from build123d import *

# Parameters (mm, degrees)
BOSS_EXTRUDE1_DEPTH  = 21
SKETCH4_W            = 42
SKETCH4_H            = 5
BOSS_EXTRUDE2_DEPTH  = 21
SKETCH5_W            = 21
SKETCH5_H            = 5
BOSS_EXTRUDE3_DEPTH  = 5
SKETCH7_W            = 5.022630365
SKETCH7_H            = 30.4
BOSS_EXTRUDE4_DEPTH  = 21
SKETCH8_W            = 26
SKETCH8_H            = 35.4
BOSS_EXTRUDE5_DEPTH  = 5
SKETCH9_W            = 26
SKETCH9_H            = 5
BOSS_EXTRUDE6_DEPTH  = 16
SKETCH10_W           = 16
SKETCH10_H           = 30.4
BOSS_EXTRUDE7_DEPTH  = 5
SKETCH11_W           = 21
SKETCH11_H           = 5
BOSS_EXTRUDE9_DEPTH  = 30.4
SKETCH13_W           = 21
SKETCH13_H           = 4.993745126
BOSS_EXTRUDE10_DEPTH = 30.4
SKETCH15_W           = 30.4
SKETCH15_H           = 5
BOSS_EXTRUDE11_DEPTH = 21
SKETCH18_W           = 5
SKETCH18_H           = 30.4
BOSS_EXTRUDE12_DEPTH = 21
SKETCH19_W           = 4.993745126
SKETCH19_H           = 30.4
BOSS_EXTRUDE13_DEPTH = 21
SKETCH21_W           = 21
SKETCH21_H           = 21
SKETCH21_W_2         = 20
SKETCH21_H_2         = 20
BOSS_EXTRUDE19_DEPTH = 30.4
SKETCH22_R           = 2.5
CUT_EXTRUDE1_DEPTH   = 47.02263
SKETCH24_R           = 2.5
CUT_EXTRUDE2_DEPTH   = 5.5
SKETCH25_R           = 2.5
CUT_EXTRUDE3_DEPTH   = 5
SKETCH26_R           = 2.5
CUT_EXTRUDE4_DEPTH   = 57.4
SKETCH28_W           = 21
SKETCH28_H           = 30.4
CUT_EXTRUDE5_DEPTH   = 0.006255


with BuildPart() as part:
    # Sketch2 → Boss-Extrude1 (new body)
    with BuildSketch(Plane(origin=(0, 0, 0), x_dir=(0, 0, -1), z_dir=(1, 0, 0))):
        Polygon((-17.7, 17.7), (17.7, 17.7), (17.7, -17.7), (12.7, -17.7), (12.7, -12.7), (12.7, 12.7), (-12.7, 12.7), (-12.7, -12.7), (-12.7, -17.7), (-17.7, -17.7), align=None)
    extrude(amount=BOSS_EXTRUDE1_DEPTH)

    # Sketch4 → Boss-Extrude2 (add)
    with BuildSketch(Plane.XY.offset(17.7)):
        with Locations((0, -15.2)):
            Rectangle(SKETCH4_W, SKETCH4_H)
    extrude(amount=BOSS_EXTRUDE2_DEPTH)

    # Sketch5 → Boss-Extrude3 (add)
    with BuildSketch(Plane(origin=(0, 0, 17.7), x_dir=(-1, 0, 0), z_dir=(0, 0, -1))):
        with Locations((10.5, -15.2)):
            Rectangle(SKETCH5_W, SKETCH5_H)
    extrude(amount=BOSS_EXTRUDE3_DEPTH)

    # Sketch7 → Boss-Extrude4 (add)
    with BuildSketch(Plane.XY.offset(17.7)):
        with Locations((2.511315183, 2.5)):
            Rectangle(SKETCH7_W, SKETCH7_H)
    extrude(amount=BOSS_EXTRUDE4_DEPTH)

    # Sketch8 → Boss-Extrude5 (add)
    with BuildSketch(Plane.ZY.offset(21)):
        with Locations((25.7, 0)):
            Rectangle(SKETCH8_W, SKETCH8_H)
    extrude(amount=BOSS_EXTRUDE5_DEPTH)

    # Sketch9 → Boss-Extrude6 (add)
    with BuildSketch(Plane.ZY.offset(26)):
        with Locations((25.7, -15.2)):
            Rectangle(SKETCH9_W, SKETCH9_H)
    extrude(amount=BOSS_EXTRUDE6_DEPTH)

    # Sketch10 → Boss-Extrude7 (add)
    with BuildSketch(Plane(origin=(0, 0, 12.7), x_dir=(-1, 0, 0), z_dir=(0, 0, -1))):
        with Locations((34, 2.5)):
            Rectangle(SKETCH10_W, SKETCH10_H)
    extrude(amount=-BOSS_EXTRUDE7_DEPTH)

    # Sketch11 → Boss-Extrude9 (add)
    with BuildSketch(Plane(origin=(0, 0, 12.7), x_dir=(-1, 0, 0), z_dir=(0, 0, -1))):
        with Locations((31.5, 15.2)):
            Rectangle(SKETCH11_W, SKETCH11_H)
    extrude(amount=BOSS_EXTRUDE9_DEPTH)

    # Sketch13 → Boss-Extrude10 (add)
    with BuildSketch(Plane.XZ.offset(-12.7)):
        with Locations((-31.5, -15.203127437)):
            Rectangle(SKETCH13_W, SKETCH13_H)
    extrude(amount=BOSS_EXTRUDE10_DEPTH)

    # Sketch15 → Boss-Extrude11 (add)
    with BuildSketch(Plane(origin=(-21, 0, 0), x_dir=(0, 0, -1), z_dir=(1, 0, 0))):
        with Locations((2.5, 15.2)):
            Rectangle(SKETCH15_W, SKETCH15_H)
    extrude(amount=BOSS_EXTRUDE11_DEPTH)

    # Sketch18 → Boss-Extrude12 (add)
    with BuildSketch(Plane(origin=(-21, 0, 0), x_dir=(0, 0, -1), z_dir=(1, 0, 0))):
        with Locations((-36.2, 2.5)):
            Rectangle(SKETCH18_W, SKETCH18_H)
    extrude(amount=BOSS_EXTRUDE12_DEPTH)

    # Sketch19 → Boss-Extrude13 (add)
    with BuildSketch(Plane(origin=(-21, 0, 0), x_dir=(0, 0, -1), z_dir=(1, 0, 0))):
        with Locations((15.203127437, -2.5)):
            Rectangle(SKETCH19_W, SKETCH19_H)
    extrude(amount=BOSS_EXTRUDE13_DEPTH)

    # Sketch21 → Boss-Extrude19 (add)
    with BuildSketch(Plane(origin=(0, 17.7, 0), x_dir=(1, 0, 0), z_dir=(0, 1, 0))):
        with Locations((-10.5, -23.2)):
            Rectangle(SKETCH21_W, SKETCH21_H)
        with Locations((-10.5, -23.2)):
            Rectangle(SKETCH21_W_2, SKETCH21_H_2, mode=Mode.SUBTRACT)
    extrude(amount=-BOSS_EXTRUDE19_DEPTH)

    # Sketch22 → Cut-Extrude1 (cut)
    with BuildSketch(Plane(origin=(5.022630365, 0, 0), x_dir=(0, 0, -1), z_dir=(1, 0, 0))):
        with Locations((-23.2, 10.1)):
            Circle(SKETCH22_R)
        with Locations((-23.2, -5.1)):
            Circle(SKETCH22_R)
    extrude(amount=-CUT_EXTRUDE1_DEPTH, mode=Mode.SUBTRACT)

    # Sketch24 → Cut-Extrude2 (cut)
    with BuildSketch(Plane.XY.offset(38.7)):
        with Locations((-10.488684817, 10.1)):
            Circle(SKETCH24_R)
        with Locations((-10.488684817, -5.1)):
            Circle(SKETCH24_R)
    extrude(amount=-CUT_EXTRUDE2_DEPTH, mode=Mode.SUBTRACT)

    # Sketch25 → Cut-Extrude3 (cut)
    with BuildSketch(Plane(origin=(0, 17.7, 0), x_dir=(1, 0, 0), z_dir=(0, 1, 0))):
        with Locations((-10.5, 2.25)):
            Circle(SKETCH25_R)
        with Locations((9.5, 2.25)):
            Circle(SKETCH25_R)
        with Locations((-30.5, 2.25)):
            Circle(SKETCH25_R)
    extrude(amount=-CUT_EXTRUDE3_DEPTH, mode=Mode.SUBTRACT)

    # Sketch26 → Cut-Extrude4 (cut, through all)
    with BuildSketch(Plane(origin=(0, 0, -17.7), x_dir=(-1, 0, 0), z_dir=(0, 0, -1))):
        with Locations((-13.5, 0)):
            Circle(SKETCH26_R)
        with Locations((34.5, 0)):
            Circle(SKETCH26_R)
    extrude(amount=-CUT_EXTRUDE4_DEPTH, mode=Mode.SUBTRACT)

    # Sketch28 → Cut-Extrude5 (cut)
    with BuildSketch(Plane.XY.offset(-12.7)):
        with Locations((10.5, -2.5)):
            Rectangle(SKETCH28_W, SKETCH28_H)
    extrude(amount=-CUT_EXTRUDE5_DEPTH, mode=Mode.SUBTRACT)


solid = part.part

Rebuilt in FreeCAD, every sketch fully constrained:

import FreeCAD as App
import Part
import Sketcher

doc = App.newDocument("Part")
body = doc.addObject("PartDesign::Body", "Body")

# Sketch on YZ plane
sketch1 = doc.addObject("Sketcher::SketchObject", "Sketch")
body.addObject(sketch1)
sketch1.AttachmentSupport = (doc.YZ_Plane, [""])
sketch1.MapMode = "FlatFace"
sketch1.addGeometry([
    Part.LineSegment(App.Vector(18, -18, 0), App.Vector(18, 18, 0)),  # 0
    Part.LineSegment(App.Vector(18, 18, 0), App.Vector(-18, 18, 0)),  # 1
    Part.LineSegment(App.Vector(-18, 18, 0), App.Vector(-18, 13, 0)),  # 2
    Part.LineSegment(App.Vector(-18, 13, 0), App.Vector(13, 13, 0)),  # 3
    Part.LineSegment(App.Vector(13, 13, 0), App.Vector(13, -13, 0)),  # 4
    Part.LineSegment(App.Vector(13, -13, 0), App.Vector(-18, -13, 0)),  # 5
    Part.LineSegment(App.Vector(-18, -13, 0), App.Vector(-18, -18, 0)),  # 6
    Part.LineSegment(App.Vector(-18, -18, 0), App.Vector(18, -18, 0)),  # 7
], False)
sketch1.addConstraint([
    Sketcher.Constraint("Coincident", 0, 2, 1, 1),
    Sketcher.Constraint("Coincident", 1, 2, 2, 1),
    Sketcher.Constraint("Coincident", 2, 2, 3, 1),
    Sketcher.Constraint("Coincident", 3, 2, 4, 1),
    Sketcher.Constraint("Coincident", 4, 2, 5, 1),
    Sketcher.Constraint("Coincident", 5, 2, 6, 1),
    Sketcher.Constraint("Coincident", 6, 2, 7, 1),
    Sketcher.Constraint("Coincident", 7, 2, 0, 1),
    Sketcher.Constraint("Vertical", 0),
    Sketcher.Constraint("Horizontal", 1),
    Sketcher.Constraint("Vertical", 2),
    Sketcher.Constraint("Horizontal", 3),
    Sketcher.Constraint("Vertical", 4),
    Sketcher.Constraint("Horizontal", 5),
    Sketcher.Constraint("Vertical", 6),
    Sketcher.Constraint("Horizontal", 7),
    Sketcher.Constraint("Symmetric", 0, 2, 6, 2, -1, 1),
    Sketcher.Constraint("Symmetric", 2, 2, 5, 2, -1),
    Sketcher.Constraint("Equal", 7, 0),
    Sketcher.Constraint("DistanceY", 2, 2, 2, 1, 5.0),
    Sketcher.Constraint("DistanceX", 1, 2, 1, 1, 35.4),
    Sketcher.Constraint("DistanceX", 3, 1, 3, 2, 30.4),
])
pad1 = doc.addObject("PartDesign::Pad", "Pad")
body.addObject(pad1)
pad1.Profile = sketch1
pad1.Length = 21

# Sketch on XY plane
sketch2 = doc.addObject("Sketcher::SketchObject", "Sketch001")
body.addObject(sketch2)
sketch2.AttachmentSupport = (doc.XY_Plane, [""])
sketch2.MapMode = "FlatFace"
sketch2.AttachmentOffset = App.Placement(App.Vector(0, 0, 17.7), App.Rotation())
sketch2.addGeometry([
    Part.LineSegment(App.Vector(-21, -13, 0), App.Vector(-21, -18, 0)),
    Part.LineSegment(App.Vector(-21, -18, 0), App.Vector(21, -18, 0)),
    Part.LineSegment(App.Vector(21, -18, 0), App.Vector(21, -13, 0)),
    Part.LineSegment(App.Vector(21, -13, 0), App.Vector(-21, -13, 0)),
], False)
sketch2.addConstraint([
    Sketcher.Constraint("Coincident", 0, 2, 1, 1),
    Sketcher.Constraint("Coincident", 1, 2, 2, 1),
    Sketcher.Constraint("Coincident", 2, 2, 3, 1),
    Sketcher.Constraint("Coincident", 3, 2, 0, 1),
    Sketcher.Constraint("Vertical", 0),
    Sketcher.Constraint("Horizontal", 1),
    Sketcher.Constraint("Vertical", 2),
    Sketcher.Constraint("Horizontal", 3),
    Sketcher.Constraint("DistanceX", 1, 1, 1, 2, 42.0),
    Sketcher.Constraint("DistanceY", 0, 2, 0, 1, 5.0),
    Sketcher.Constraint("DistanceX", 0, 2, -1, 1, 21.0),
    Sketcher.Constraint("DistanceY", 0, 2, -1, 1, 17.7),
])
pad2 = doc.addObject("PartDesign::Pad", "Pad001")
body.addObject(pad2)
pad2.Profile = sketch2
pad2.Length = 21

# Sketch on XY plane
sketch3 = doc.addObject("Sketcher::SketchObject", "Sketch002")
body.addObject(sketch3)
sketch3.AttachmentSupport = (doc.XY_Plane, [""])
sketch3.MapMode = "FlatFace"
sketch3.AttachmentOffset = App.Placement(App.Vector(0, 0, 17.7), App.Rotation())
sketch3.addGeometry([
    Part.LineSegment(App.Vector(0, -13, 0), App.Vector(0, -18, 0)),
    Part.LineSegment(App.Vector(0, -18, 0), App.Vector(-21, -18, 0)),
    Part.LineSegment(App.Vector(-21, -18, 0), App.Vector(-21, -13, 0)),
    Part.LineSegment(App.Vector(-21, -13, 0), App.Vector(0, -13, 0)),
], False)
sketch3.addConstraint([
    Sketcher.Constraint("Coincident", 0, 2, 1, 1),
    Sketcher.Constraint("Coincident", 1, 2, 2, 1),
    Sketcher.Constraint("Coincident", 2, 2, 3, 1),
    Sketcher.Constraint("Coincident", 3, 2, 0, 1),
    Sketcher.Constraint("Vertical", 0),
    Sketcher.Constraint("Horizontal", 1),
    Sketcher.Constraint("Vertical", 2),
    Sketcher.Constraint("Horizontal", 3),
    Sketcher.Constraint("PointOnObject", 0, 2, -2),
    Sketcher.Constraint("DistanceX", 1, 2, 1, 1, 21.0),
    Sketcher.Constraint("DistanceY", 0, 2, 0, 1, 5.0),
    Sketcher.Constraint("DistanceY", 0, 2, -1, 1, 17.7),
])
pad3 = doc.addObject("PartDesign::Pad", "Pad002")
body.addObject(pad3)
pad3.Profile = sketch3
pad3.Length = 5
pad3.Reversed = True

# Sketch on XY plane
sketch4 = doc.addObject("Sketcher::SketchObject", "Sketch003")
body.addObject(sketch4)
sketch4.AttachmentSupport = (doc.XY_Plane, [""])
sketch4.MapMode = "FlatFace"
sketch4.AttachmentOffset = App.Placement(App.Vector(0, 0, 17.7), App.Rotation())
sketch4.addGeometry([
    Part.LineSegment(App.Vector(0, 18, 0), App.Vector(0, -13, 0)),
    Part.LineSegment(App.Vector(0, -13, 0), App.Vector(5, -13, 0)),
    Part.LineSegment(App.Vector(5, -13, 0), App.Vector(5, 18, 0)),
    Part.LineSegment(App.Vector(5, 18, 0), App.Vector(0, 18, 0)),
], False)
sketch4.addConstraint([
    Sketcher.Constraint("Coincident", 0, 2, 1, 1),
    Sketcher.Constraint("Coincident", 1, 2, 2, 1),
    Sketcher.Constraint("Coincident", 2, 2, 3, 1),
    Sketcher.Constraint("Coincident", 3, 2, 0, 1),
    Sketcher.Constraint("Vertical", 0),
    Sketcher.Constraint("Horizontal", 1),
    Sketcher.Constraint("Vertical", 2),
    Sketcher.Constraint("Horizontal", 3),
    Sketcher.Constraint("PointOnObject", 0, 2, -2),
    Sketcher.Constraint("DistanceY", 0, 2, 0, 1, 30.4),
    Sketcher.Constraint("DistanceY", 0, 2, -1, 1, 12.7),
    Sketcher.Constraint("DistanceX", 1, 1, 1, 2, 5.02263),
])
pad4 = doc.addObject("PartDesign::Pad", "Pad003")
body.addObject(pad4)
pad4.Profile = sketch4
pad4.Length = 21

# Sketch on YZ plane
sketch5 = doc.addObject("Sketcher::SketchObject", "Sketch004")
body.addObject(sketch5)
sketch5.AttachmentSupport = (doc.YZ_Plane, [""])
sketch5.MapMode = "FlatFace"
sketch5.AttachmentOffset = App.Placement(App.Vector(0, 0, -21), App.Rotation())
sketch5.addGeometry([
    Part.LineSegment(App.Vector(18, 13, 0), App.Vector(-18, 13, 0)),
    Part.LineSegment(App.Vector(-18, 13, 0), App.Vector(-18, 39, 0)),
    Part.LineSegment(App.Vector(-18, 39, 0), App.Vector(18, 39, 0)),
    Part.LineSegment(App.Vector(18, 39, 0), App.Vector(18, 13, 0)),
], False)
sketch5.addConstraint([
    Sketcher.Constraint("Coincident", 0, 2, 1, 1),
    Sketcher.Constraint("Coincident", 1, 2, 2, 1),
    Sketcher.Constraint("Coincident", 2, 2, 3, 1),
    Sketcher.Constraint("Coincident", 3, 2, 0, 1),
    Sketcher.Constraint("Horizontal", 0),
    Sketcher.Constraint("Vertical", 1),
    Sketcher.Constraint("Horizontal", 2),
    Sketcher.Constraint("Vertical", 3),
    Sketcher.Constraint("DistanceY", 1, 1, 1, 2, 26.0),
    Sketcher.Constraint("DistanceX", 0, 2, 0, 1, 35.4),
    Sketcher.Constraint("DistanceX", 0, 2, -1, 1, 17.7),
    Sketcher.Constraint("DistanceY", -1, 1, 0, 2, 12.7),
])
pad5 = doc.addObject("PartDesign::Pad", "Pad004")
body.addObject(pad5)
pad5.Profile = sketch5
pad5.Length = 5
pad5.Reversed = True

# Sketch on YZ plane
sketch6 = doc.addObject("Sketcher::SketchObject", "Sketch005")
body.addObject(sketch6)
sketch6.AttachmentSupport = (doc.YZ_Plane, [""])
sketch6.MapMode = "FlatFace"
sketch6.AttachmentOffset = App.Placement(App.Vector(0, 0, -26), App.Rotation())
sketch6.addGeometry([
    Part.LineSegment(App.Vector(-13, 13, 0), App.Vector(-18, 13, 0)),
    Part.LineSegment(App.Vector(-18, 13, 0), App.Vector(-18, 39, 0)),
    Part.LineSegment(App.Vector(-18, 39, 0), App.Vector(-13, 39, 0)),
    Part.LineSegment(App.Vector(-13, 39, 0), App.Vector(-13, 13, 0)),
], False)
sketch6.addConstraint([
    Sketcher.Constraint("Coincident", 0, 2, 1, 1),
    Sketcher.Constraint("Coincident", 1, 2, 2, 1),
    Sketcher.Constraint("Coincident", 2, 2, 3, 1),
    Sketcher.Constraint("Coincident", 3, 2, 0, 1),
    Sketcher.Constraint("Horizontal", 0),
    Sketcher.Constraint("Vertical", 1),
    Sketcher.Constraint("Horizontal", 2),
    Sketcher.Constraint("Vertical", 3),
    Sketcher.Constraint("DistanceX", 0, 2, 0, 1, 5.0),
    Sketcher.Constraint("DistanceY", 1, 1, 1, 2, 26.0),
    Sketcher.Constraint("DistanceX", 0, 2, -1, 1, 17.7),
    Sketcher.Constraint("DistanceY", -1, 1, 0, 2, 12.7),
])
pad6 = doc.addObject("PartDesign::Pad", "Pad005")
body.addObject(pad6)
pad6.Profile = sketch6
pad6.Length = 16
pad6.Reversed = True

# Sketch on XY plane
sketch7 = doc.addObject("Sketcher::SketchObject", "Sketch006")
body.addObject(sketch7)
sketch7.AttachmentSupport = (doc.XY_Plane, [""])
sketch7.MapMode = "FlatFace"
sketch7.AttachmentOffset = App.Placement(App.Vector(0, 0, 12.7), App.Rotation())
sketch7.addGeometry([
    Part.LineSegment(App.Vector(-26, 18, 0), App.Vector(-26, -13, 0)),
    Part.LineSegment(App.Vector(-26, -13, 0), App.Vector(-42, -13, 0)),
    Part.LineSegment(App.Vector(-42, -13, 0), App.Vector(-42, 18, 0)),
    Part.LineSegment(App.Vector(-42, 18, 0), App.Vector(-26, 18, 0)),
], False)
sketch7.addConstraint([
    Sketcher.Constraint("Coincident", 0, 2, 1, 1),
    Sketcher.Constraint("Coincident", 1, 2, 2, 1),
    Sketcher.Constraint("Coincident", 2, 2, 3, 1),
    Sketcher.Constraint("Coincident", 3, 2, 0, 1),
    Sketcher.Constraint("Vertical", 0),
    Sketcher.Constraint("Horizontal", 1),
    Sketcher.Constraint("Vertical", 2),
    Sketcher.Constraint("Horizontal", 3),
    Sketcher.Constraint("DistanceX", 1, 2, 1, 1, 16.0),
    Sketcher.Constraint("DistanceY", 0, 2, 0, 1, 30.4),
    Sketcher.Constraint("DistanceX", 0, 2, -1, 1, 26.0),
    Sketcher.Constraint("DistanceY", 0, 2, -1, 1, 12.7),
])
pad7 = doc.addObject("PartDesign::Pad", "Pad006")
body.addObject(pad7)
pad7.Profile = sketch7
pad7.Length = 5

# Sketch on XY plane
sketch8 = doc.addObject("Sketcher::SketchObject", "Sketch007")
body.addObject(sketch8)
sketch8.AttachmentSupport = (doc.XY_Plane, [""])
sketch8.MapMode = "FlatFace"
sketch8.AttachmentOffset = App.Placement(App.Vector(0, 0, 12.7), App.Rotation())
sketch8.addGeometry([
    Part.LineSegment(App.Vector(-21, 18, 0), App.Vector(-21, 13, 0)),
    Part.LineSegment(App.Vector(-21, 13, 0), App.Vector(-42, 13, 0)),
    Part.LineSegment(App.Vector(-42, 13, 0), App.Vector(-42, 18, 0)),
    Part.LineSegment(App.Vector(-42, 18, 0), App.Vector(-21, 18, 0)),
], False)
sketch8.addConstraint([
    Sketcher.Constraint("Coincident", 0, 2, 1, 1),
    Sketcher.Constraint("Coincident", 1, 2, 2, 1),
    Sketcher.Constraint("Coincident", 2, 2, 3, 1),
    Sketcher.Constraint("Coincident", 3, 2, 0, 1),
    Sketcher.Constraint("Vertical", 0),
    Sketcher.Constraint("Horizontal", 1),
    Sketcher.Constraint("Vertical", 2),
    Sketcher.Constraint("Horizontal", 3),
    Sketcher.Constraint("DistanceX", 1, 2, 1, 1, 21.0),
    Sketcher.Constraint("DistanceY", 0, 2, 0, 1, 5.0),
    Sketcher.Constraint("DistanceX", 0, 2, -1, 1, 21.0),
    Sketcher.Constraint("DistanceY", -1, 1, 0, 2, 12.7),
])
pad8 = doc.addObject("PartDesign::Pad", "Pad007")
body.addObject(pad8)
pad8.Profile = sketch8
pad8.Length = 30.4
pad8.Reversed = True

# Sketch on XZ plane
sketch9 = doc.addObject("Sketcher::SketchObject", "Sketch008")
body.addObject(sketch9)
sketch9.AttachmentSupport = (doc.XZ_Plane, [""])
sketch9.MapMode = "FlatFace"
sketch9.AttachmentOffset = App.Placement(App.Vector(0, 0, -12.7), App.Rotation())
sketch9.addGeometry([
    Part.LineSegment(App.Vector(-42, -12.7, 0), App.Vector(-42, -17.7, 0)),
    Part.LineSegment(App.Vector(-42, -17.7, 0), App.Vector(-21, -17.7, 0)),
    Part.LineSegment(App.Vector(-21, -17.7, 0), App.Vector(-21, -12.7, 0)),
    Part.LineSegment(App.Vector(-21, -12.7, 0), App.Vector(-42, -12.7, 0)),
], False)
sketch9.addConstraint([
    Sketcher.Constraint("Coincident", 0, 2, 1, 1),
    Sketcher.Constraint("Coincident", 1, 2, 2, 1),
    Sketcher.Constraint("Coincident", 2, 2, 3, 1),
    Sketcher.Constraint("Coincident", 3, 2, 0, 1),
    Sketcher.Constraint("Vertical", 0),
    Sketcher.Constraint("Horizontal", 1),
    Sketcher.Constraint("Vertical", 2),
    Sketcher.Constraint("Horizontal", 3),
    Sketcher.Constraint("DistanceX", 1, 1, 1, 2, 21.0),
    Sketcher.Constraint("DistanceX", 0, 2, -1, 1, 42.0),
    Sketcher.Constraint("DistanceY", 0, 2, -1, 1, 17.7),
    Sketcher.Constraint("DistanceY", 0, 2, 0, 1, 4.993745),
])
pad9 = doc.addObject("PartDesign::Pad", "Pad008")
body.addObject(pad9)
pad9.Profile = sketch9
pad9.Length = 30.4

# Sketch on YZ plane
sketch10 = doc.addObject("Sketcher::SketchObject", "Sketch009")
body.addObject(sketch10)
sketch10.AttachmentSupport = (doc.YZ_Plane, [""])
sketch10.MapMode = "FlatFace"
sketch10.AttachmentOffset = App.Placement(App.Vector(0, 0, -21), App.Rotation())
sketch10.addGeometry([
    Part.LineSegment(App.Vector(18, 13, 0), App.Vector(13, 13, 0)),
    Part.LineSegment(App.Vector(13, 13, 0), App.Vector(13, -18, 0)),
    Part.LineSegment(App.Vector(13, -18, 0), App.Vector(18, -18, 0)),
    Part.LineSegment(App.Vector(18, -18, 0), App.Vector(18, 13, 0)),
], False)
sketch10.addConstraint([
    Sketcher.Constraint("Coincident", 0, 2, 1, 1),
    Sketcher.Constraint("Coincident", 1, 2, 2, 1),
    Sketcher.Constraint("Coincident", 2, 2, 3, 1),
    Sketcher.Constraint("Coincident", 3, 2, 0, 1),
    Sketcher.Constraint("Horizontal", 0),
    Sketcher.Constraint("Vertical", 1),
    Sketcher.Constraint("Horizontal", 2),
    Sketcher.Constraint("Vertical", 3),
    Sketcher.Constraint("DistanceX", 0, 2, 0, 1, 5.0),
    Sketcher.Constraint("DistanceY", 1, 2, 1, 1, 30.4),
    Sketcher.Constraint("DistanceX", -1, 1, 0, 2, 12.7),
    Sketcher.Constraint("DistanceY", -1, 1, 0, 2, 12.7),
])
pad10 = doc.addObject("PartDesign::Pad", "Pad009")
body.addObject(pad10)
pad10.Profile = sketch10
pad10.Length = 21

# Sketch on YZ plane
sketch11 = doc.addObject("Sketcher::SketchObject", "Sketch010")
body.addObject(sketch11)
sketch11.AttachmentSupport = (doc.YZ_Plane, [""])
sketch11.MapMode = "FlatFace"
sketch11.AttachmentOffset = App.Placement(App.Vector(0, 0, -21), App.Rotation())
sketch11.addGeometry([
    Part.LineSegment(App.Vector(18, 39, 0), App.Vector(-13, 39, 0)),
    Part.LineSegment(App.Vector(-13, 39, 0), App.Vector(-13, 34, 0)),
    Part.LineSegment(App.Vector(-13, 34, 0), App.Vector(18, 34, 0)),
    Part.LineSegment(App.Vector(18, 34, 0), App.Vector(18, 39, 0)),
], False)
sketch11.addConstraint([
    Sketcher.Constraint("Coincident", 0, 2, 1, 1),
    Sketcher.Constraint("Coincident", 1, 2, 2, 1),
    Sketcher.Constraint("Coincident", 2, 2, 3, 1),
    Sketcher.Constraint("Coincident", 3, 2, 0, 1),
    Sketcher.Constraint("Horizontal", 0),
    Sketcher.Constraint("Vertical", 1),
    Sketcher.Constraint("Horizontal", 2),
    Sketcher.Constraint("Vertical", 3),
    Sketcher.Constraint("DistanceY", 1, 2, 1, 1, 5.0),
    Sketcher.Constraint("DistanceX", 0, 2, 0, 1, 30.4),
    Sketcher.Constraint("DistanceX", 0, 2, -1, 1, 12.7),
    Sketcher.Constraint("DistanceY", -1, 1, 0, 2, 38.7),
])
pad11 = doc.addObject("PartDesign::Pad", "Pad010")
body.addObject(pad11)
pad11.Profile = sketch11
pad11.Length = 21

# Sketch on YZ plane
sketch12 = doc.addObject("Sketcher::SketchObject", "Sketch011")
body.addObject(sketch12)
sketch12.AttachmentSupport = (doc.YZ_Plane, [""])
sketch12.MapMode = "FlatFace"
sketch12.AttachmentOffset = App.Placement(App.Vector(0, 0, -21), App.Rotation())
sketch12.addGeometry([
    Part.LineSegment(App.Vector(12.7, -12.7, 0), App.Vector(-17.7, -12.7, 0)),
    Part.LineSegment(App.Vector(-17.7, -12.7, 0), App.Vector(-17.7, -17.7, 0)),
    Part.LineSegment(App.Vector(-17.7, -17.7, 0), App.Vector(12.7, -17.7, 0)),
    Part.LineSegment(App.Vector(12.7, -17.7, 0), App.Vector(12.7, -12.7, 0)),
], False)
sketch12.addConstraint([
    Sketcher.Constraint("Coincident", 0, 2, 1, 1),
    Sketcher.Constraint("Coincident", 1, 2, 2, 1),
    Sketcher.Constraint("Coincident", 2, 2, 3, 1),
    Sketcher.Constraint("Coincident", 3, 2, 0, 1),
    Sketcher.Constraint("Horizontal", 0),
    Sketcher.Constraint("Vertical", 1),
    Sketcher.Constraint("Horizontal", 2),
    Sketcher.Constraint("Vertical", 3),
    Sketcher.Constraint("DistanceX", 0, 2, 0, 1, 30.4),
    Sketcher.Constraint("DistanceX", 0, 2, -1, 1, 17.7),
    Sketcher.Constraint("DistanceY", 1, 2, -1, 1, 17.7),
    Sketcher.Constraint("DistanceY", 1, 2, 1, 1, 4.993745),
])
pad12 = doc.addObject("PartDesign::Pad", "Pad011")
body.addObject(pad12)
pad12.Profile = sketch12
pad12.Length = 21

# Sketch on XZ plane
sketch13 = doc.addObject("Sketcher::SketchObject", "Sketch012")
body.addObject(sketch13)
sketch13.AttachmentSupport = (doc.XZ_Plane, [""])
sketch13.MapMode = "FlatFace"
sketch13.AttachmentOffset = App.Placement(App.Vector(0, 0, -17.7), App.Rotation())
sketch13.addGeometry([
    Part.LineSegment(App.Vector(-21, 13, 0), App.Vector(-21, 34, 0)),  # 0
    Part.LineSegment(App.Vector(-21, 34, 0), App.Vector(0, 34, 0)),  # 1
    Part.LineSegment(App.Vector(0, 34, 0), App.Vector(0, 13, 0)),  # 2
    Part.LineSegment(App.Vector(0, 13, 0), App.Vector(-21, 13, 0)),  # 3
    Part.LineSegment(App.Vector(0, 33, 0), App.Vector(-20, 33, 0)),  # 4
    Part.LineSegment(App.Vector(-20, 33, 0), App.Vector(-20, 13, 0)),  # 5
    Part.LineSegment(App.Vector(-20, 13, 0), App.Vector(0, 13, 0)),  # 6
    Part.LineSegment(App.Vector(0, 13, 0), App.Vector(0, 33, 0)),  # 7
], False)
sketch13.addConstraint([
    Sketcher.Constraint("Coincident", 0, 2, 1, 1),
    Sketcher.Constraint("Coincident", 1, 2, 2, 1),
    Sketcher.Constraint("Coincident", 2, 2, 3, 1),
    Sketcher.Constraint("Coincident", 3, 2, 0, 1),
    Sketcher.Constraint("Coincident", 4, 2, 5, 1),
    Sketcher.Constraint("Coincident", 5, 2, 6, 1),
    Sketcher.Constraint("Coincident", 6, 2, 7, 1),
    Sketcher.Constraint("Coincident", 7, 2, 4, 1),
    Sketcher.Constraint("Vertical", 0),
    Sketcher.Constraint("Horizontal", 1),
    Sketcher.Constraint("Vertical", 2),
    Sketcher.Constraint("Horizontal", 3),
    Sketcher.Constraint("Horizontal", 4),
    Sketcher.Constraint("Vertical", 5),
    Sketcher.Constraint("Horizontal", 6),
    Sketcher.Constraint("Vertical", 7),
    Sketcher.Constraint("PointOnObject", 1, 2, -2),
    Sketcher.Constraint("Equal", 3, 0),
    Sketcher.Constraint("Equal", 6, 5),
    Sketcher.Constraint("DistanceX", 1, 1, 1, 2, 21.0),
    Sketcher.Constraint("DistanceX", 4, 2, 4, 1, 20.0),
    Sketcher.Constraint("DistanceY", -1, 1, 0, 2, 33.7),
    Sketcher.Constraint("DistanceX", 4, 2, -1, 1, 20.5),
    Sketcher.Constraint("DistanceY", -1, 1, 4, 2, 33.2),
])
pad13 = doc.addObject("PartDesign::Pad", "Pad012")
body.addObject(pad13)
pad13.Profile = sketch13
pad13.Length = 30.4

# Sketch on YZ plane
sketch14 = doc.addObject("Sketcher::SketchObject", "Sketch013")
body.addObject(sketch14)
sketch14.AttachmentSupport = (doc.YZ_Plane, [""])
sketch14.MapMode = "FlatFace"
sketch14.AttachmentOffset = App.Placement(App.Vector(0, 0, 5.02263), App.Rotation())
sketch14.addGeometry([
    Part.Circle(App.Vector(10.1, 23.2, 0), App.Vector(0, 0, 1), 2.5),
    Part.Circle(App.Vector(-5.1, 23.2, 0), App.Vector(0, 0, 1), 2.5),
], False)
sketch14.addConstraint([
    Sketcher.Constraint("Equal", 0, 1),
    Sketcher.Constraint("Horizontal", 0, 3, 1, 3),
    Sketcher.Constraint("Diameter", 0, 5.0),
    Sketcher.Constraint("DistanceX", -1, 1, 0, 3, 10.1),
    Sketcher.Constraint("DistanceY", -1, 1, 0, 3, 23.2),
    Sketcher.Constraint("DistanceX", 1, 3, -1, 1, 5.1),
])
pocket1 = doc.addObject("PartDesign::Pocket", "Pocket")
body.addObject(pocket1)
pocket1.Profile = sketch14
pocket1.Length = 47.02263

# Sketch on XY plane
sketch15 = doc.addObject("Sketcher::SketchObject", "Sketch014")
body.addObject(sketch15)
sketch15.AttachmentSupport = (doc.XY_Plane, [""])
sketch15.MapMode = "FlatFace"
sketch15.AttachmentOffset = App.Placement(App.Vector(0, 0, 38.7), App.Rotation())
sketch15.addGeometry([
    Part.Circle(App.Vector(-10.5, 10.1, 0), App.Vector(0, 0, 1), 2.5),
    Part.Circle(App.Vector(-10.5, -5.1, 0), App.Vector(0, 0, 1), 2.5),
], False)
sketch15.addConstraint([
    Sketcher.Constraint("Equal", 0, 1),
    Sketcher.Constraint("Vertical", 0, 3, 1, 3),
    Sketcher.Constraint("Diameter", 0, 5.0),
    Sketcher.Constraint("DistanceY", -1, 1, 0, 3, 10.1),
    Sketcher.Constraint("DistanceY", 1, 3, -1, 1, 5.1),
    Sketcher.Constraint("DistanceX", 0, 3, -1, 1, 10.488685),
])
pocket2 = doc.addObject("PartDesign::Pocket", "Pocket001")
body.addObject(pocket2)
pocket2.Profile = sketch15
pocket2.Length = 5.5

# Sketch on XZ plane
sketch16 = doc.addObject("Sketcher::SketchObject", "Sketch015")
body.addObject(sketch16)
sketch16.AttachmentSupport = (doc.XZ_Plane, [""])
sketch16.MapMode = "FlatFace"
sketch16.AttachmentOffset = App.Placement(App.Vector(0, 0, -17.7), App.Rotation())
sketch16.addGeometry([
    Part.Circle(App.Vector(-10.5, -2.2, 0), App.Vector(0, 0, 1), 2.5),
    Part.Circle(App.Vector(9.5, -2.2, 0), App.Vector(0, 0, 1), 2.5),
    Part.Circle(App.Vector(-30.5, -2.2, 0), App.Vector(0, 0, 1), 2.5),
], False)
sketch16.addConstraint([
    Sketcher.Constraint("Equal", 0, 1),
    Sketcher.Constraint("Equal", 1, 2),
    Sketcher.Constraint("Horizontal", 0, 3, 1, 3),
    Sketcher.Constraint("Horizontal", 1, 3, 2, 3),
    Sketcher.Constraint("Diameter", 0, 5.0),
    Sketcher.Constraint("DistanceX", 0, 3, 1, 3, 20.0),
    Sketcher.Constraint("DistanceX", 2, 3, 0, 3, 20.0),
    Sketcher.Constraint("DistanceX", 0, 3, -1, 1, 10.5),
    Sketcher.Constraint("DistanceY", 0, 3, -1, 1, 2.25),
])
pocket3 = doc.addObject("PartDesign::Pocket", "Pocket002")
body.addObject(pocket3)
pocket3.Profile = sketch16
pocket3.Length = 5
pocket3.Reversed = True

# Sketch on XY plane
sketch17 = doc.addObject("Sketcher::SketchObject", "Sketch016")
body.addObject(sketch17)
sketch17.AttachmentSupport = (doc.XY_Plane, [""])
sketch17.MapMode = "FlatFace"
sketch17.AttachmentOffset = App.Placement(App.Vector(0, 0, -17.7), App.Rotation())
sketch17.addGeometry([
    Part.Circle(App.Vector(13.5, 0, 0), App.Vector(0, 0, 1), 2.5),
    Part.Circle(App.Vector(-34.5, 0, 0), App.Vector(0, 0, 1), 2.5),
], False)
sketch17.addConstraint([
    Sketcher.Constraint("Equal", 0, 1),
    Sketcher.Constraint("PointOnObject", 0, 3, -1),
    Sketcher.Constraint("PointOnObject", 1, 3, -1),
    Sketcher.Constraint("Diameter", 0, 5.0),
    Sketcher.Constraint("DistanceX", 1, 3, 0, 3, 48.0),
    Sketcher.Constraint("DistanceX", -1, 1, 0, 3, 13.5),
])
pocket4 = doc.addObject("PartDesign::Pocket", "Pocket003")
body.addObject(pocket4)
pocket4.Profile = sketch17
pocket4.Type = "ThroughAll"
pocket4.Reversed = True

# Sketch on XY plane
sketch18 = doc.addObject("Sketcher::SketchObject", "Sketch017")
body.addObject(sketch18)
sketch18.AttachmentSupport = (doc.XY_Plane, [""])
sketch18.MapMode = "FlatFace"
sketch18.AttachmentOffset = App.Placement(App.Vector(0, 0, -12.7), App.Rotation())
sketch18.addGeometry([
    Part.LineSegment(App.Vector(0, 13, 0), App.Vector(0, -18, 0)),
    Part.LineSegment(App.Vector(0, -18, 0), App.Vector(21, -18, 0)),
    Part.LineSegment(App.Vector(21, -18, 0), App.Vector(21, 13, 0)),
    Part.LineSegment(App.Vector(21, 13, 0), App.Vector(0, 13, 0)),
], False)
sketch18.addConstraint([
    Sketcher.Constraint("Coincident", 0, 2, 1, 1),
    Sketcher.Constraint("Coincident", 1, 2, 2, 1),
    Sketcher.Constraint("Coincident", 2, 2, 3, 1),
    Sketcher.Constraint("Coincident", 3, 2, 0, 1),
    Sketcher.Constraint("Vertical", 0),
    Sketcher.Constraint("Horizontal", 1),
    Sketcher.Constraint("Vertical", 2),
    Sketcher.Constraint("Horizontal", 3),
    Sketcher.Constraint("PointOnObject", 0, 2, -2),
    Sketcher.Constraint("DistanceX", 1, 1, 1, 2, 21.0),
    Sketcher.Constraint("DistanceY", 0, 2, 0, 1, 30.4),
    Sketcher.Constraint("DistanceY", 0, 2, -1, 1, 17.7),
])
pocket5 = doc.addObject("PartDesign::Pocket", "Pocket004")
body.addObject(pocket5)
pocket5.Profile = sketch18
pocket5.Length = 0.006255

doc.recompute()
